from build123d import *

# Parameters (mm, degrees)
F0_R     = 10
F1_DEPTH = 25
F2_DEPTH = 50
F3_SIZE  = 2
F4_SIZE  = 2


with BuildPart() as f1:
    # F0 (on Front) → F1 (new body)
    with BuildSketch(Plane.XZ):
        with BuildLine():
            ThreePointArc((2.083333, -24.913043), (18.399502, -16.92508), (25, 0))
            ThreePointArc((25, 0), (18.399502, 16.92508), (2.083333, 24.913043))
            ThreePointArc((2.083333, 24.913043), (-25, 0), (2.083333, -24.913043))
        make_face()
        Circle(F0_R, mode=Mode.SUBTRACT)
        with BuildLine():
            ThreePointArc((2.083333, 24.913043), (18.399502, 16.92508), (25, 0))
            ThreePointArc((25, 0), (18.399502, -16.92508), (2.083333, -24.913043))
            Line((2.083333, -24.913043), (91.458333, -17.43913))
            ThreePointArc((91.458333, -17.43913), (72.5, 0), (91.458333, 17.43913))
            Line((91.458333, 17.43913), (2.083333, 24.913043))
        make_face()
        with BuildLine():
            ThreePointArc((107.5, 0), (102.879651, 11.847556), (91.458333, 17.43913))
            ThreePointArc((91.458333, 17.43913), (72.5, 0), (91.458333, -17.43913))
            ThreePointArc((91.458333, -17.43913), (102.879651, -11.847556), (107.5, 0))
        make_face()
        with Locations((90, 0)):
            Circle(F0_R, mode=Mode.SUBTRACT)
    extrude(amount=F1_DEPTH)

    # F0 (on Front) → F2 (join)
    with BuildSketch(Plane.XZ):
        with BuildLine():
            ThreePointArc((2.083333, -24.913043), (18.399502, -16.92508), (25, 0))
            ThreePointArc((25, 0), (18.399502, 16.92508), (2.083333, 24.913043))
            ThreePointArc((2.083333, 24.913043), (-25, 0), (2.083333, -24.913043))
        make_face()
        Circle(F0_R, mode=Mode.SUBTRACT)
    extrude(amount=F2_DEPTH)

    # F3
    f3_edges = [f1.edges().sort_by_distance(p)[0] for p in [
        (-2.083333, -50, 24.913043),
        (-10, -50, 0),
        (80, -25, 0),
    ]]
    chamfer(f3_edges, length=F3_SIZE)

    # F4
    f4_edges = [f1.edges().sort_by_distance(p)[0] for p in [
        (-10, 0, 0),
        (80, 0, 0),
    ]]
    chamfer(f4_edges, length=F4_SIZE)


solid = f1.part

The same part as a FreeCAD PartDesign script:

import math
import FreeCAD as App
import Part
import Sketcher

V = App.Vector


def edges_at(feature, points):
    """Names of the edges that pass closest to the given points."""
    edges = feature.Shape.Edges
    near = lambda p: min(range(len(edges)), key=lambda i: edges[i].distToShape(Part.Vertex(*p))[0])
    return sorted({f"Edge{near(p) + 1}" for p in points})

doc = App.newDocument("Part")
params = doc.addObject("Spreadsheet::Sheet", "Params")
for row, (alias, value) in enumerate([
    ("sketch1_diameter", "20 mm"),
    ("sketch1_radius", "25 mm"),
    ("sketch1_radius2", "17.5 mm"),
    ("pad1_length", "25 mm"),
    ("sketch2_diameter", "20 mm"),
    ("sketch2_radius", "24.999999 mm"),
    ("pad2_length", "50 mm"),
    ("chamfer_size", "2 mm"),
    ("chamfer2_size", "2 mm"),
], start=1):
    params.set(f"A{row}", alias)
    params.set(f"B{row}", "=" + value)
    params.setAlias(f"B{row}", alias)

body = doc.addObject("PartDesign::Body", "Body")

# Sketch on XZ plane
sketch1 = doc.addObject("Sketcher::SketchObject", "Sketch")
body.addObject(sketch1)
sketch1.AttachmentSupport = (doc.XZ_Plane, [""])
sketch1.MapMode = "FlatFace"
sketch1.addGeometry([
    Part.ArcOfCircle(Part.Circle(V(0, 0, 0), V(0, 0, 1), 25), math.radians(85.219808), math.radians(274.780192)),  # 0
    Part.LineSegment(V(2.083333, -24.913043, 0), V(91.458333, -17.43913, 0)),  # 1
    Part.ArcOfCircle(Part.Circle(V(90, 0, 0), V(0, 0, 1), 17.5), math.radians(-85.219809), math.radians(-0.000001)),  # 2
    Part.ArcOfCircle(Part.Circle(V(90, 0, 0), V(0, 0, 1), 17.5), math.radians(0.000001), math.radians(85.219809)),  # 3
    Part.LineSegment(V(91.458333, 17.43913, 0), V(2.083333, 24.913043, 0)),  # 4
    Part.Circle(V(0, 0, 0), V(0, 0, 1), 10),  # 5
    Part.Circle(V(90, 0, 0), V(0, 0, 1), 10),  # 6
], False)
sketch1.addConstraint([
    Sketcher.Constraint("Tangent", 0, 2, 1, 1),
    Sketcher.Constraint("Tangent", 1, 2, 2, 1),
    Sketcher.Constraint("Tangent", 2, 2, 3, 1),
    Sketcher.Constraint("Tangent", 3, 2, 4, 1),
    Sketcher.Constraint("Tangent", 4, 2, 0, 1),
    Sketcher.Constraint("Coincident", 0, 3, -1, 1),
    Sketcher.Constraint("Coincident", 5, 3, -1, 1),
    Sketcher.Constraint("Coincident", 6, 3, 2, 3),
    Sketcher.Constraint("Equal", 2, 3),
    Sketcher.Constraint("Equal", 5, 6),
    Sketcher.Constraint("PointOnObject", 2, 3, -1),
    Sketcher.Constraint("PointOnObject", 2, 2, -1),
    Sketcher.Constraint("Diameter", 5, 20.0),
    Sketcher.Constraint("Radius", 0, 25.0),
    Sketcher.Constraint("Radius", 2, 17.5),
    Sketcher.Constraint("DistanceX", -1, 1, 2, 3, 90.0),
])
sketch1.setExpression("Constraints[12]", "Params.sketch1_diameter")
sketch1.setExpression("Constraints[13]", "Params.sketch1_radius")
sketch1.setExpression("Constraints[14]", "Params.sketch1_radius2")
pad1 = doc.addObject("PartDesign::Pad", "Pad")
body.addObject(pad1)
pad1.Profile = sketch1
pad1.setExpression("Length", "Params.pad1_length")

# Sketch on XZ plane
sketch2 = doc.addObject("Sketcher::SketchObject", "Sketch001")
body.addObject(sketch2)
sketch2.AttachmentSupport = (doc.XZ_Plane, [""])
sketch2.MapMode = "FlatFace"
sketch2.addGeometry([
    Part.ArcOfCircle(Part.Circle(V(0.000001, -0.000001, 0), V(0, 0, 1), 24.999999), math.radians(-85.219811), math.radians(0.000001)),
    Part.ArcOfCircle(Part.Circle(V(0.000001, 0.000001, 0), V(0, 0, 1), 24.999999), math.radians(-0.000001), math.radians(85.219811)),
    Part.ArcOfCircle(Part.Circle(V(0, 0, 0), V(0, 0, 1), 25), math.radians(85.219808), math.radians(274.780192)),
    Part.Circle(V(0, 0, 0), V(0, 0, 1), 10),
], False)
sketch2.addConstraint([
    Sketcher.Constraint("Tangent", 0, 2, 1, 1),
    Sketcher.Constraint("Tangent", 1, 2, 2, 1),
    Sketcher.Constraint("Tangent", 2, 2, 0, 1),
    Sketcher.Constraint("Coincident", 0, 3, -1, 1),
    Sketcher.Constraint("Coincident", 3, 3, -1, 1),
    Sketcher.Constraint("PointOnObject", 0, 2, -1),
    Sketcher.Constraint("Vertical", 1, 2, 2, 2),
    Sketcher.Constraint("Diameter", 3, 20.0),
    Sketcher.Constraint("Radius", 0, 24.999999),
    Sketcher.Constraint("DistanceX", -1, 1, 1, 2, 2.083333),
])
sketch2.setExpression("Constraints[7]", "Params.sketch2_diameter")
sketch2.setExpression("Constraints[8]", "Params.sketch2_radius")
pad2 = doc.addObject("PartDesign::Pad", "Pad001")
body.addObject(pad2)
pad2.Profile = sketch2
pad2.setExpression("Length", "Params.pad2_length")
doc.recompute()

chamfer = doc.addObject("PartDesign::Chamfer", "Chamfer")
body.addObject(chamfer)
chamfer.Base = (pad2, edges_at(pad2, [(-25, -50, 0), (-10, -50, 0), (80, -25, 0)]))
chamfer.setExpression("Size", "Params.chamfer_size")
doc.recompute()

chamfer2 = doc.addObject("PartDesign::Chamfer", "Chamfer001")
body.addObject(chamfer2)
chamfer2.Base = (chamfer, edges_at(chamfer, [(-10, 0, 0), (80, 0, 0)]))
chamfer2.setExpression("Size", "Params.chamfer2_size")

doc.recompute()
